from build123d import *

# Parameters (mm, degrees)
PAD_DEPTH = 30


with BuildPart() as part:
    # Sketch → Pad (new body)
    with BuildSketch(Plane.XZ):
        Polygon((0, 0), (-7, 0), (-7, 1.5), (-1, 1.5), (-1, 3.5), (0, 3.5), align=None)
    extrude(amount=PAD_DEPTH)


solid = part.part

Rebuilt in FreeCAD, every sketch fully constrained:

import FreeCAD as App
import Part
import Sketcher

V = App.Vector


def add_polygon(sketch, points):
    """Adds a closed chain of lines whose ends are joined by coincident constraints."""
    first, n = sketch.GeometryCount, len(points)
    for a, b in zip(points, points[1:] + points[:1]):
        sketch.addGeometry(Part.LineSegment(App.Vector(*a, 0), App.Vector(*b, 0)), False)
    for i in range(n):
        sketch.addConstraint(Sketcher.Constraint("Coincident", first + i, 2, first + (i + 1) % n, 1))

doc = App.newDocument("Part")
body = doc.addObject("PartDesign::Body", "Body")

# Sketch on XZ plane
sketch1 = body.newObject("Sketcher::SketchObject", "Sketch")
sketch1.AttachmentSupport = (doc.getObject("XZ_Plane"), [""])
sketch1.MapMode = "FlatFace"
add_polygon(sketch1, [(-7, 0), (0, 0), (0, 3.5), (-1, 3.5), (-1, 1.5), (-7, 1.5)])  # lines 0-5
sketch1.addConstraint([
    Sketcher.Constraint("Horizontal", 0),
    Sketcher.Constraint("Vertical", 1),
    Sketcher.Constraint("Horizontal", 2),
    Sketcher.Constraint("Vertical", 3),
    Sketcher.Constraint("Horizontal", 4),
    Sketcher.Constraint("Vertical", 5),
    Sketcher.Constraint("Coincident", 0, 2, -1, 1),
    Sketcher.Constraint("DistanceX", 0, 1, 0, 2, 7.0),
    Sketcher.Constraint("DistanceX", 2, 2, 2, 1, 1.0),
    Sketcher.Constraint("DistanceY", 3, 2, 3, 1, 2.0),
    Sketcher.Constraint("DistanceY", 1, 1, 1, 2, 3.5),
])
pad1 = body.newObject("PartDesign::Pad", "Pad")
pad1.Profile = sketch1
pad1.Length = 30

doc.recompute()
